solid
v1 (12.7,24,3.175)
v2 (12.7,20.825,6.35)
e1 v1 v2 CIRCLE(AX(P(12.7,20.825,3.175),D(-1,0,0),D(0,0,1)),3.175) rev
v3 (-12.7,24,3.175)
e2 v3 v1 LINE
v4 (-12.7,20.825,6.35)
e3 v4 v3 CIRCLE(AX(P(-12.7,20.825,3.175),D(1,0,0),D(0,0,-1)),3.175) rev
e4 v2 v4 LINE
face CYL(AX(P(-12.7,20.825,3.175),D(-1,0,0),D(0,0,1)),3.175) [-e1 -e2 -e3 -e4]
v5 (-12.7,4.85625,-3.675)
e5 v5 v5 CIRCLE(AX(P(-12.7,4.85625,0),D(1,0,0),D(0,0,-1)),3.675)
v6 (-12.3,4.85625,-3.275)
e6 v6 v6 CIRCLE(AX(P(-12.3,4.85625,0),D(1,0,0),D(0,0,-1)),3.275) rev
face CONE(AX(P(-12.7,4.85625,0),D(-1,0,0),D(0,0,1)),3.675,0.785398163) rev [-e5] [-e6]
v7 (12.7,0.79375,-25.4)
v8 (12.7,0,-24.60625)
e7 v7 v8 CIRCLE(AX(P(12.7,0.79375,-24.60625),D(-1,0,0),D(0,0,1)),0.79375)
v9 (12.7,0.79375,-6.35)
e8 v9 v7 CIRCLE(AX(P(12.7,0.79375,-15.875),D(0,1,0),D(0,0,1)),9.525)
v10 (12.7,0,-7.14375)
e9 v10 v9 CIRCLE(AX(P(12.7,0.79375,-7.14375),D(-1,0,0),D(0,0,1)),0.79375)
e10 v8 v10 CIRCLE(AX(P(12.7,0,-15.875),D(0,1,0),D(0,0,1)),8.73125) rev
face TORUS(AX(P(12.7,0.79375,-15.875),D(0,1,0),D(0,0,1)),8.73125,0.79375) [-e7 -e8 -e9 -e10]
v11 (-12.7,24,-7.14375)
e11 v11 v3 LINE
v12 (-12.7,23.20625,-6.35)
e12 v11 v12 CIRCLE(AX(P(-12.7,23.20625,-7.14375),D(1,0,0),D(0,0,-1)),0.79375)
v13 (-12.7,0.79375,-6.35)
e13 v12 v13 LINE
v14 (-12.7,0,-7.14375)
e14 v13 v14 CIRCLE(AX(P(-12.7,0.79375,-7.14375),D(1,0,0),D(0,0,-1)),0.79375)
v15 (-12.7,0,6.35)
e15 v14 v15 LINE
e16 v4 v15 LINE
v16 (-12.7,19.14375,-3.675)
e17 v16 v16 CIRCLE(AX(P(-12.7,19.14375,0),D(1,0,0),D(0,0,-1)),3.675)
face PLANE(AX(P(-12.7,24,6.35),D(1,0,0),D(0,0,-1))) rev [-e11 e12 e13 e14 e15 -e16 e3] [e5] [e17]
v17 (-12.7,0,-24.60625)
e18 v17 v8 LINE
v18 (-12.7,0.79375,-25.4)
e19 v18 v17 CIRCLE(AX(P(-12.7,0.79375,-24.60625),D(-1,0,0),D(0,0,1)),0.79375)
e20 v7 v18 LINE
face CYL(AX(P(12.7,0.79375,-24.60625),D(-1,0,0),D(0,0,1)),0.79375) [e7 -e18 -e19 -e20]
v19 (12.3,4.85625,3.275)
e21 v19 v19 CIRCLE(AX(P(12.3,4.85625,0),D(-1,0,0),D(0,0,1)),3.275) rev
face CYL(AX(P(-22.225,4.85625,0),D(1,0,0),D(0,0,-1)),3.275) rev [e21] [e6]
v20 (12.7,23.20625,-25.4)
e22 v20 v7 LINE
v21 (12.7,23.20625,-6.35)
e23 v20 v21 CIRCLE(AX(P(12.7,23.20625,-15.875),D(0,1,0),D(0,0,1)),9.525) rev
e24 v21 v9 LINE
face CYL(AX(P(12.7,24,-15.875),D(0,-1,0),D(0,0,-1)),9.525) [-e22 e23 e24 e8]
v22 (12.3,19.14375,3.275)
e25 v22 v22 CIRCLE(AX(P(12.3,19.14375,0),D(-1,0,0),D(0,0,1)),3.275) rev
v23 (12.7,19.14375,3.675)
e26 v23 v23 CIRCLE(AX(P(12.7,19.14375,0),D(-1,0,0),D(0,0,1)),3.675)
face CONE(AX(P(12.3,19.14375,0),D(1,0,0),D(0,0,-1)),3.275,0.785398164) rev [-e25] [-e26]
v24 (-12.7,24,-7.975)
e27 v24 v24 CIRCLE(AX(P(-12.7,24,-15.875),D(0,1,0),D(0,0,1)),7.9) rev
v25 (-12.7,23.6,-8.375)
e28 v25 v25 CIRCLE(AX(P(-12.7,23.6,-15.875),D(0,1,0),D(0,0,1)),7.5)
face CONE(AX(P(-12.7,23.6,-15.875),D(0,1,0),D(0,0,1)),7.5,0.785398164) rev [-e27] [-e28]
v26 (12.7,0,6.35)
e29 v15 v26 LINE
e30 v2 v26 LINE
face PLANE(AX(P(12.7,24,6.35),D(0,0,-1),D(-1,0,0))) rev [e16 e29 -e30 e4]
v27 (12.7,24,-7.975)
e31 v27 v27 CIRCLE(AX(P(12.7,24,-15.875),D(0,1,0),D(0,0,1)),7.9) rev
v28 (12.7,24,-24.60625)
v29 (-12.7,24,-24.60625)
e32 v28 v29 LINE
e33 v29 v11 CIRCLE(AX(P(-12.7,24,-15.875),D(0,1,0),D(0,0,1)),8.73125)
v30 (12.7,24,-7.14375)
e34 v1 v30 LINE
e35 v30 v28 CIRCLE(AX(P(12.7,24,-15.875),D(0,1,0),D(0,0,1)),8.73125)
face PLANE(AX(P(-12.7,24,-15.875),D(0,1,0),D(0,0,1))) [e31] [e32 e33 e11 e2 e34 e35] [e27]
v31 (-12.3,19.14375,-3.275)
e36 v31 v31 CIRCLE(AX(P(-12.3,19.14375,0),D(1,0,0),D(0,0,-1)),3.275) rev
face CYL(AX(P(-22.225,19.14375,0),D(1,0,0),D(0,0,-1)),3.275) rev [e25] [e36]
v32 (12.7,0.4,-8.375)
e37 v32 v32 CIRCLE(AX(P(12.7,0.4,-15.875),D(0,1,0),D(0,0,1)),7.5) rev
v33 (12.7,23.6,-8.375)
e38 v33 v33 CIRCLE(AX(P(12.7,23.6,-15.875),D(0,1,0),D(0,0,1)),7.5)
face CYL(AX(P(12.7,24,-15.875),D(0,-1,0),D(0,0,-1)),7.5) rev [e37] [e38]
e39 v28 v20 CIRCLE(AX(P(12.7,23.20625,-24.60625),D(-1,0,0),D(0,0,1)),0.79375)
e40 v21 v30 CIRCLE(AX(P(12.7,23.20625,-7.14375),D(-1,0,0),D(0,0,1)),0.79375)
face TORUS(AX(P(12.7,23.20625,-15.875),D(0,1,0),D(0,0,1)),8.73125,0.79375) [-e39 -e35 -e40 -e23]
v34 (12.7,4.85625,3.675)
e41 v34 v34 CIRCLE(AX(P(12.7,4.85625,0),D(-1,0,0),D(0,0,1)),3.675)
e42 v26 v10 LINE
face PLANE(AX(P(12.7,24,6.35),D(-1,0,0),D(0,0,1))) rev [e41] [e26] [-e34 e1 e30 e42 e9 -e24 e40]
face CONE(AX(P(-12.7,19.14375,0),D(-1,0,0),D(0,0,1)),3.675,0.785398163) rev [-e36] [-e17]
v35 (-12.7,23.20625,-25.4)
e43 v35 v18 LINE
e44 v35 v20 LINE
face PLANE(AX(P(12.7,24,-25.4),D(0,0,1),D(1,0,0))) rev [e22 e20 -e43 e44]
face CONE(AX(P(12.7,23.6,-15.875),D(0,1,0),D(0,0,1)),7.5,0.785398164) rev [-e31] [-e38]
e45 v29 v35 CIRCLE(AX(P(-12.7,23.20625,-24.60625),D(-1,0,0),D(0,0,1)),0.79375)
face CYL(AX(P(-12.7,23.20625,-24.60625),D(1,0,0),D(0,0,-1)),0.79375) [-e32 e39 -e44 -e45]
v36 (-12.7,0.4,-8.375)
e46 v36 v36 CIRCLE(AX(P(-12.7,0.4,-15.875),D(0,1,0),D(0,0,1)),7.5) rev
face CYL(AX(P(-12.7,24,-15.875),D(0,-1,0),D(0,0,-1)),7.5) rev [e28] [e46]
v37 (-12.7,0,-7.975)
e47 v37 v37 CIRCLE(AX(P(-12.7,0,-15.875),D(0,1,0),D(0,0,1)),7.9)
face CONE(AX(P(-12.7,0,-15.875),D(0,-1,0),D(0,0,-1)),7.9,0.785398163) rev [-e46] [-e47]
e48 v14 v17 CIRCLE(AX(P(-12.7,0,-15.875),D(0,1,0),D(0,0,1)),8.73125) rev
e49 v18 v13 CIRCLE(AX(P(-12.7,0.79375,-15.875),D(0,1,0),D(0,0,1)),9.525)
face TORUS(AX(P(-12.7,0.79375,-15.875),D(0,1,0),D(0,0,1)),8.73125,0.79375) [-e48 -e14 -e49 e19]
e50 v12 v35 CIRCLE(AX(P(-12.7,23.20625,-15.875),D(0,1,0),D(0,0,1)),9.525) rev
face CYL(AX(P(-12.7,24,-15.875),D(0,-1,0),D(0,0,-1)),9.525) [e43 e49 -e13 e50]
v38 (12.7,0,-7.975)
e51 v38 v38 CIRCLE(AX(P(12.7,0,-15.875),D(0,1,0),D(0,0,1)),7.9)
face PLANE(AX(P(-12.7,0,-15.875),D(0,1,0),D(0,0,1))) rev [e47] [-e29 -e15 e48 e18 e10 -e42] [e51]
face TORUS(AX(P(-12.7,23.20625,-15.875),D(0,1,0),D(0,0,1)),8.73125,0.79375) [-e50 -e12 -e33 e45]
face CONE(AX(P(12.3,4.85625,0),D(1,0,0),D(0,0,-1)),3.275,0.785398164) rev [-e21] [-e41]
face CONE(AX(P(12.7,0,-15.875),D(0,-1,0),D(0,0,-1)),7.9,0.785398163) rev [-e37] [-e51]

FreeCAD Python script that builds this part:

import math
import FreeCAD as App
import Part
import Sketcher

V = App.Vector
Q = App.Units.Quantity


def edges_at(feature, points):
    """Names of the edges that pass closest to the given points."""
    edges = feature.Shape.Edges
    near = lambda p: min(range(len(edges)), key=lambda i: edges[i].distToShape(Part.Vertex(*p))[0])
    return sorted({f"Edge{near(p) + 1}" for p in points})

doc = App.newDocument("Part")
body = doc.addObject("PartDesign::Body", "Body")

# Sketch on XZ plane
sketch1 = body.newObject("Sketcher::SketchObject", "Sketch")
sketch1.AttachmentSupport = (doc.getObject("XZ_Plane"), [""])
sketch1.MapMode = "FlatFace"
sketch1.addGeometry(Part.LineSegment(V(-13, 6, 0), V(13, 6, 0)), False)
sketch1.addGeometry(Part.LineSegment(V(13, 6, 0), V(13, -6, 0)), False)
sketch1.addGeometry(Part.ArcOfCircle(Part.Circle(V(13, -16, 0), V(0, 0, 1), 10), math.radians(-90), math.radians(90)), False)
sketch1.addGeometry(Part.LineSegment(V(13, -25, 0), V(-13, -25, 0)), False)
sketch1.addGeometry(Part.ArcOfCircle(Part.Circle(V(-13, -16, 0), V(0, 0, 1), 10), math.radians(90), math.radians(270)), False)
sketch1.addGeometry(Part.LineSegment(V(-13, -6, 0), V(-13, 6, 0)), False)
sketch1.addGeometry(Part.Circle(V(13, -16, 0), V(0, 0, 1), 8), False)
sketch1.addGeometry(Part.Circle(V(-13, -16, 0), V(0, 0, 1), 8), False)
sketch1.addConstraint(Sketcher.Constraint("Coincident", 0, 2, 1, 1))
sketch1.addConstraint(Sketcher.Constraint("Coincident", 1, 2, 2, 2))
sketch1.addConstraint(Sketcher.Constraint("Tangent", 2, 1, 3, 1))
sketch1.addConstraint(Sketcher.Constraint("Tangent", 3, 2, 4, 2))
sketch1.addConstraint(Sketcher.Constraint("Coincident", 4, 1, 5, 1))
sketch1.addConstraint(Sketcher.Constraint("Coincident", 5, 2, 0, 1))
sketch1.addConstraint(Sketcher.Constraint("Horizontal", 0))
sketch1.addConstraint(Sketcher.Constraint("Vertical", 1))
sketch1.addConstraint(Sketcher.Constraint("Horizontal", 3))
sketch1.addConstraint(Sketcher.Constraint("Vertical", 5))
sketch1.addConstraint(Sketcher.Constraint("Coincident", 6, 3, 2, 3))
sketch1.addConstraint(Sketcher.Constraint("Coincident", 7, 3, 4, 3))
sketch1.addConstraint(Sketcher.Constraint("Equal", 2, 4))
sketch1.addConstraint(Sketcher.Constraint("Equal", 6, 7))
sketch1.addConstraint(Sketcher.Constraint("Symmetric", 0, 2, 4, 1, -1, 1))
sketch1.addConstraint(Sketcher.Constraint("Vertical", 6, 3, 0, 2))
sketch1.addConstraint(Sketcher.Constraint("Vertical", 3, 2, 4, 1))
sketch1.addConstraint(Sketcher.Constraint("DistanceX", 0, 1, 0, 2, Q("1 in")))
sketch1.addConstraint(Sketcher.Constraint("DistanceY", 1, 2, 1, 1, Q("0.5 in")))
sketch1.addConstraint(Sketcher.Constraint("DistanceY", 2, 1, -1, 1, Q("1 in")))
sketch1.addConstraint(Sketcher.Constraint("Diameter", 6, 15.0))
pad1 = body.newObject("PartDesign::Pad", "Pad")
pad1.Profile = sketch1
pad1.Length = 24
pad1.Reversed = True
doc.recompute()

chamfer = body.newObject("PartDesign::Chamfer", "Chamfer")
chamfer.Base = (pad1, edges_at(pad1, [
    (-12.7, 0, -23.375),
    (-12.7, 24, -23.375),
    (12.7, 0, -8.375),
    (12.7, 24, -8.375),
]))
chamfer.Size = 0.4
doc.recompute()

fillet = body.newObject("PartDesign::Fillet", "Fillet")
fillet.Base = (chamfer, edges_at(chamfer, [(0, 24, 6.35)]))
fillet.Radius = Q("0.125 in")

# Sketch on YZ plane
sketch2 = body.newObject("Sketcher::SketchObject", "Sketch001")
sketch2.AttachmentSupport = (doc.getObject("YZ_Plane"), [""])
sketch2.MapMode = "FlatFace"
sketch2.AttachmentOffset = App.Placement(V(0, 0, 0.5 * 25.4), App.Rotation())
sketch2.addGeometry(Part.Circle(V(19.1, 0, 0), V(0, 0, 1), 3.3), False)
sketch2.addGeometry(Part.Circle(V(4.9, 0, 0), V(0, 0, 1), 3.3), False)
sketch2.addConstraint(Sketcher.Constraint("Equal", 0, 1))
sketch2.addConstraint(Sketcher.Constraint("PointOnObject", 0, 3, -1))
sketch2.addConstraint(Sketcher.Constraint("PointOnObject", 1, 3, -1))
sketch2.addConstraint(Sketcher.Constraint("Diameter", 0, 6.55))
sketch2.addConstraint(Sketcher.Constraint("DistanceX", 1, 3, 0, 3, Q("0.5625 in")))
sketch2.addConstraint(Sketcher.Constraint("DistanceX", -1, 1, 0, 3, 19.14375))
pocket1 = body.newObject("PartDesign::Pocket", "Pocket")
pocket1.Profile = sketch2
pocket1.Type = "ThroughAll"
doc.recompute()

chamfer2 = body.newObject("PartDesign::Chamfer", "Chamfer001")
chamfer2.Base = (pocket1, edges_at(pocket1, [
    (-12.7, 19.144, 3.275),
    (12.7, 19.144, 3.275),
    (-12.7, 4.856, 3.275),
    (12.7, 4.856, 3.275),
]))
chamfer2.Size = 0.4
doc.recompute()

fillet2 = body.newObject("PartDesign::Fillet", "Fillet001")
fillet2.Base = (chamfer2, edges_at(chamfer2, [
    (22.225, 24, -15.875),
    (0, 24, -25.4),
    (-22.225, 24, -15.875),
    (0, 0, -25.4),
    (22.225, 0, -15.875),
    (-22.225, 0, -15.875),
]))
fillet2.Radius = Q("0.03125 in")

doc.recompute()
